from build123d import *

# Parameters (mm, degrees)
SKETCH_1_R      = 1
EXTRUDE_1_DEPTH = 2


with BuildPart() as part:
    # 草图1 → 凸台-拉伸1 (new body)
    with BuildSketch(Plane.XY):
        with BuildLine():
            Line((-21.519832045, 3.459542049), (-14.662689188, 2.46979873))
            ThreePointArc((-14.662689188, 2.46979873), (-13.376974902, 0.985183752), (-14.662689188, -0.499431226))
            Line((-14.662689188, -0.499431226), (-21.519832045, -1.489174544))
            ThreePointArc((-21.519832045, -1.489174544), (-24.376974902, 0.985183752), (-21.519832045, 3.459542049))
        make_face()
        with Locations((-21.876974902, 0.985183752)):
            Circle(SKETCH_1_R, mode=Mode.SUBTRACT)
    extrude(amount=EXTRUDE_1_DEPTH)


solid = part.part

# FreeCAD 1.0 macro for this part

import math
import FreeCAD as App
import Part
import Sketcher
Q = App.Units.Quantity

doc = App.newDocument("Part")
body = doc.addObject("PartDesign::Body", "Body")

sketch1 = body.newObject("Sketcher::SketchObject", "Sketch")
sketch1.AttachmentSupport = (doc.getObject("XY_Plane"), [""])
sketch1.MapMode = "FlatFace"
sketch1.addGeometry(Part.LineSegment(App.Vector(-14.662689, 2.469799, 0), App.Vector(-21.519832, 3.459542, 0)), False)
sketch1.addGeometry(Part.ArcOfCircle(Part.Circle(App.Vector(-21.876975, 0.985184, 0), App.Vector(0, 0, 1), 2.5), math.radians(81.786789), math.radians(278.213211)), False)
sketch1.addGeometry(Part.LineSegment(App.Vector(-21.519832, -1.489175, 0), App.Vector(-14.662689, -0.499431, 0)), False)
sketch1.addGeometry(Part.ArcOfCircle(Part.Circle(App.Vector(-14.876975, 0.985184, 0), App.Vector(0, 0, 1), 1.5), math.radians(-81.786789), math.radians(81.786789)), False)
sketch1.addGeometry(Part.Circle(App.Vector(-21.876975, 0.985184, 0), App.Vector(0, 0, 1), 1), False)
sketch1.addConstraint(Sketcher.Constraint("Tangent", 0, 2, 1, 1))
sketch1.addConstraint(Sketcher.Constraint("Tangent", 1, 2, 2, 1))
sketch1.addConstraint(Sketcher.Constraint("Tangent", 2, 2, 3, 1))
sketch1.addConstraint(Sketcher.Constraint("Tangent", 3, 2, 0, 1))
sketch1.addConstraint(Sketcher.Constraint("Coincident", 4, 3, 1, 3))
sketch1.addConstraint(Sketcher.Constraint("Horizontal", 1, 3, 3, 3))
sketch1.addConstraint(Sketcher.Constraint("Diameter", 4, Q("2 mm")))
sketch1.addConstraint(Sketcher.Constraint("Radius", 1, Q("2.5 mm")))
sketch1.addConstraint(Sketcher.Constraint("Radius", 3, Q("1.5 mm")))
sketch1.addConstraint(Sketcher.Constraint("DistanceX", 1, 3, 3, 3, Q("7 mm")))
sketch1.addConstraint(Sketcher.Constraint("DistanceY", -1, 1, 3, 2, Q("2.469799 mm")))
sketch1.addConstraint(Sketcher.Constraint("DistanceX", 2, 2, -1, 1, Q("14.662689 mm")))
pad1 = body.newObject("PartDesign::Pad", "Pad")
pad1.Profile = sketch1
pad1.Length = 2

doc.recompute()
